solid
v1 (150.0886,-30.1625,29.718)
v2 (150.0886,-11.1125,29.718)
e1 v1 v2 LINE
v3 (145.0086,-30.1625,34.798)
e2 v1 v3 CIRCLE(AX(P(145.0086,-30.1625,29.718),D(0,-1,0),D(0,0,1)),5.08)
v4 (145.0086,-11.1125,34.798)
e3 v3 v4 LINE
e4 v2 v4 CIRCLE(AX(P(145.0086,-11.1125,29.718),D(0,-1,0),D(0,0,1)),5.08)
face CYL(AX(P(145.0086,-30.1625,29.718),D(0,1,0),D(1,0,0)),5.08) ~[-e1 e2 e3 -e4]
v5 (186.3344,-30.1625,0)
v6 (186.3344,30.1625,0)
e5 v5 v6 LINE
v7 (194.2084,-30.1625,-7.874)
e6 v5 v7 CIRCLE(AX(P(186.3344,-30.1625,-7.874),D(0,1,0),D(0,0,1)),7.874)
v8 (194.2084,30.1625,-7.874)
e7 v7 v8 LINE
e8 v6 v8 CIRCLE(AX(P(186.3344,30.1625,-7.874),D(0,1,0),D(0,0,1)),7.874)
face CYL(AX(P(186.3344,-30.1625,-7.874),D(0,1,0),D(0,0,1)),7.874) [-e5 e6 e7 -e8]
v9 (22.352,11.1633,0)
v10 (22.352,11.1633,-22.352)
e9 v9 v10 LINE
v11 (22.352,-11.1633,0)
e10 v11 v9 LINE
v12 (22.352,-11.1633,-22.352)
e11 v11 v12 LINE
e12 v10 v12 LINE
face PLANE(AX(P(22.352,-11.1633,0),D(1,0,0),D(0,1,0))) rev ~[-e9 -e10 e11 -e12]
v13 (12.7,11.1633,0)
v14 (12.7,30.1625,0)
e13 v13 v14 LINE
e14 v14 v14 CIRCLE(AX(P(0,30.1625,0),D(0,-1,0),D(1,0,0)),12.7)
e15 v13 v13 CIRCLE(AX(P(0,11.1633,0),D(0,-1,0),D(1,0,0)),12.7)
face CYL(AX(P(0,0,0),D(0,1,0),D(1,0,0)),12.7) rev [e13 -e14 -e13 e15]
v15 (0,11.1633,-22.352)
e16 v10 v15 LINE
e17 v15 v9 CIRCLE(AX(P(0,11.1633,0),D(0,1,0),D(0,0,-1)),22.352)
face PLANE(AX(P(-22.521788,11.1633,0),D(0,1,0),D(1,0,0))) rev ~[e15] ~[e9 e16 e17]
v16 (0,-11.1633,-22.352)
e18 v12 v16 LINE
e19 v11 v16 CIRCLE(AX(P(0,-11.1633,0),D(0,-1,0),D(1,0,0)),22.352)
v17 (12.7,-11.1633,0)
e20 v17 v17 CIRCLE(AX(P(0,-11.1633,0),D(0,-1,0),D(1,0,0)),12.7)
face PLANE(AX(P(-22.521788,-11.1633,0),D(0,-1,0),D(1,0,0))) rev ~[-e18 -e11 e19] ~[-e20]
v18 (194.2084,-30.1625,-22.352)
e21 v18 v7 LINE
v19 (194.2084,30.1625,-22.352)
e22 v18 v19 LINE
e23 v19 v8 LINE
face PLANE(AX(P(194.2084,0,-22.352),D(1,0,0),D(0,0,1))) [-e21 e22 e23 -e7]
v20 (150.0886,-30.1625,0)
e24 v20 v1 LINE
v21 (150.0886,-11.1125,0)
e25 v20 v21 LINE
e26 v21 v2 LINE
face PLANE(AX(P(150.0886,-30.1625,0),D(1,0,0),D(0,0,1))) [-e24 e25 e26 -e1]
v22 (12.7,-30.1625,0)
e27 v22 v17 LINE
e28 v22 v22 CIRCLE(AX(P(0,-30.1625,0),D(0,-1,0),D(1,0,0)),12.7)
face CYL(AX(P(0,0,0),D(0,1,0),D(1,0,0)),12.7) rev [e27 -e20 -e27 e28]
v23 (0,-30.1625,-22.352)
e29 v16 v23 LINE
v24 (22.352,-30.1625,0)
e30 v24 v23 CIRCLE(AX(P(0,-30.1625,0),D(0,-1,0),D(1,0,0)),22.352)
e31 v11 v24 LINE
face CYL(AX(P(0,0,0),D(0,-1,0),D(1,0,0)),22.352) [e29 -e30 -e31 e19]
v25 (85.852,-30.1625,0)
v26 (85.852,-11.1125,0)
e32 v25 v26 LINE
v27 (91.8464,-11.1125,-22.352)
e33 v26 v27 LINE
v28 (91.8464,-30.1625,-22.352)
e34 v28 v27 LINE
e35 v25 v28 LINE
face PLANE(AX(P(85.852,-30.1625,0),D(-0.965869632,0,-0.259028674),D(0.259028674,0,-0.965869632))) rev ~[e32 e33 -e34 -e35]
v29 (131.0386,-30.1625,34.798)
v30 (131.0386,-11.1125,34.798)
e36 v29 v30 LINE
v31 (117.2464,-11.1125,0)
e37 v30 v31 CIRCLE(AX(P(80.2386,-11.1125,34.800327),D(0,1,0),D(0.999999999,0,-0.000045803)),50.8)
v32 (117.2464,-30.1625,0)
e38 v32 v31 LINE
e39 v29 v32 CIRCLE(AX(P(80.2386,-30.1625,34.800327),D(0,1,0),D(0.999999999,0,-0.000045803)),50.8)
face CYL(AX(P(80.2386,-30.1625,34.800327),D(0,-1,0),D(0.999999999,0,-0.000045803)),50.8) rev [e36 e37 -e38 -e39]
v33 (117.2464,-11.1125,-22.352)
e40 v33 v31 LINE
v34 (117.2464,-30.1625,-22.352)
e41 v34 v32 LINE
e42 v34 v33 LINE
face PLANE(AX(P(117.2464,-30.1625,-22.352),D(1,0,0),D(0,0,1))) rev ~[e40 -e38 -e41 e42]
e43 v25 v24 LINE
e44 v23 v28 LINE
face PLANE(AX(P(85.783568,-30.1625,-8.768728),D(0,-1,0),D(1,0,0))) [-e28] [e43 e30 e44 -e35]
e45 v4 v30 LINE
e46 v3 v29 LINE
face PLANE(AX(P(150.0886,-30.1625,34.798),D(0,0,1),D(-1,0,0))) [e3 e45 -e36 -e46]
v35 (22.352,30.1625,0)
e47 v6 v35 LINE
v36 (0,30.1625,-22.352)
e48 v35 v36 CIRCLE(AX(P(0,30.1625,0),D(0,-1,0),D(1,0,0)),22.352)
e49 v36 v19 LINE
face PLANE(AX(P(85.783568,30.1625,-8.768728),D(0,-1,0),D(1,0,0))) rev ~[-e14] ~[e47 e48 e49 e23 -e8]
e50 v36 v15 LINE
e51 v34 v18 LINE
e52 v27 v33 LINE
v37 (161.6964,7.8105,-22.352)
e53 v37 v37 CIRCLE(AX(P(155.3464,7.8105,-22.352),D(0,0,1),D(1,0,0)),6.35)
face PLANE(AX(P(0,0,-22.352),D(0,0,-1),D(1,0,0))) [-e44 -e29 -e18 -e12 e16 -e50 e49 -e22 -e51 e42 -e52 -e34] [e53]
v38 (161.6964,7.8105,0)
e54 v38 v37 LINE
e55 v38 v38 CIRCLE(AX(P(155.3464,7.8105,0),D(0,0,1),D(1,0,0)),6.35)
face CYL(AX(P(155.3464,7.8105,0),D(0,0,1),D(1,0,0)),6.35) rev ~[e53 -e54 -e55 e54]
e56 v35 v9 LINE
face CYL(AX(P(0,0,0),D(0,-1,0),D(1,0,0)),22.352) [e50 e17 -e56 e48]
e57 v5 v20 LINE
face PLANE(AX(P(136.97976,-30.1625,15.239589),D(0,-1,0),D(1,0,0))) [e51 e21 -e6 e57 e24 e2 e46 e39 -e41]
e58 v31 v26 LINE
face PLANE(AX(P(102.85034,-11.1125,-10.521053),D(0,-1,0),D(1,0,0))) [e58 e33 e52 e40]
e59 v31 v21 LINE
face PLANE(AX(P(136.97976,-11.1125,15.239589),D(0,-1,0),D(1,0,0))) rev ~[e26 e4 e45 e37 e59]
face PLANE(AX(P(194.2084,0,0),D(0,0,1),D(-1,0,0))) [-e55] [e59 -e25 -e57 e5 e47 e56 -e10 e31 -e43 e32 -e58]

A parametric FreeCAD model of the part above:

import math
import FreeCAD as App
import Part
import Sketcher
from FreeCAD import Vector
Q = App.Units.Quantity


def edges_at(feature, points):
    """Names of the edges that pass closest to the given points."""
    edges = feature.Shape.Edges
    near = lambda p: min(range(len(edges)), key=lambda i: edges[i].distToShape(Part.Vertex(*p))[0])
    return sorted({f"Edge{near(p) + 1}" for p in points})

doc = App.newDocument("Part")
params = doc.addObject("Spreadsheet::Sheet", "Params")
for row, (alias, value) in enumerate([
    ("sketch1_diameter", "1 in"),
    ("sketch1_radius", "0.88 in"),
    ("sketch1_width", "6.766 in"),
    ("pad1_length", "2.375 in"),
    ("sketch2_height", "0.879 in"),
    ("sketch3_width", "1 in"),
    ("sketch3_height", "0.88 in"),
    ("sketch3_width2", "1.236 in"),
    ("pocket2_length", "0.75 in"),
    ("sketch4_radius", "2 in"),
    ("sketch4_width", "0.75 in"),
    ("sketch4_height", "1.37 in"),
    ("sketch4_width2", "1.293 in"),
    ("pad2_length", "0.75 in"),
    ("sketch5_diameter", "0.5 in"),
    ("fillet_radius", "0.31 in"),
    ("fillet2_radius", "0.2 in"),
], start=1):
    params.set(f"A{row}", alias)
    params.set(f"B{row}", "=" + value)
    params.setAlias(f"B{row}", alias)

body = doc.addObject("PartDesign::Body", "Body")

sketch1 = body.newObject("Sketcher::SketchObject", "Sketch")
sketch1.AttachmentSupport = (doc.getObject("XZ_Plane"), [""])
sketch1.MapMode = "FlatFace"
sketch1.addGeometry([
    Part.LineSegment(Vector(194.2084, 0, 0), Vector(22.352, 0, 0)),
    Part.ArcOfCircle(Part.Circle(Vector(0, 0, 0), Vector(0, 0, 1), 22.352), math.radians(0), math.radians(270)),
    Part.LineSegment(Vector(0, -22.352, 0), Vector(194.2084, -22.352, 0)),
    Part.LineSegment(Vector(194.2084, -22.352, 0), Vector(194.2084, 0, 0)),
    Part.Circle(Vector(0, 0, 0), Vector(0, 0, 1), 12.7),
], False)
sketch1.addConstraint([
    Sketcher.Constraint("Coincident", 0, 2, 1, 1),
    Sketcher.Constraint("Tangent", 1, 2, 2, 1),
    Sketcher.Constraint("Coincident", 2, 2, 3, 1),
    Sketcher.Constraint("Coincident", 3, 2, 0, 1),
    Sketcher.Constraint("Horizontal", 0),
    Sketcher.Constraint("Horizontal", 2),
    Sketcher.Constraint("Vertical", 3),
    Sketcher.Constraint("Coincident", 1, 3, -1, 1),
    Sketcher.Constraint("Coincident", 4, 3, -1, 1),
    Sketcher.Constraint("PointOnObject", 0, 2, -1),
    Sketcher.Constraint("Diameter", 4, Q("1 in")),
    Sketcher.Constraint("Radius", 1, Q("0.88 in")),
    Sketcher.Constraint("DistanceX", 0, 2, 0, 1, Q("6.766 in")),
])
sketch1.setExpression("Constraints[10]", "Params.sketch1_diameter")
sketch1.setExpression("Constraints[11]", "Params.sketch1_radius")
sketch1.setExpression("Constraints[12]", "Params.sketch1_width")
pad1 = body.newObject("PartDesign::Pad", "Pad")
pad1.Profile = sketch1
pad1.setExpression("Length", "Params.pad1_length")
pad1.Midplane = True

sketch2 = body.newObject("Sketcher::SketchObject", "Sketch001")
sketch2.AttachmentSupport = (doc.getObject("XY_Plane"), [""])
sketch2.MapMode = "FlatFace"
sketch2.addGeometry([
    Part.LineSegment(Vector(-22.521788, 11.1633, 0), Vector(-22.521788, -11.1633, 0)),
    Part.LineSegment(Vector(-22.521788, -11.1633, 0), Vector(22.352, -11.1633, 0)),
    Part.LineSegment(Vector(22.352, -11.1633, 0), Vector(22.352, 11.1633, 0)),
    Part.LineSegment(Vector(22.352, 11.1633, 0), Vector(-22.521788, 11.1633, 0)),
], False)
sketch2.addConstraint([
    Sketcher.Constraint("Coincident", 0, 2, 1, 1),
    Sketcher.Constraint("Coincident", 1, 2, 2, 1),
    Sketcher.Constraint("Coincident", 2, 2, 3, 1),
    Sketcher.Constraint("Coincident", 3, 2, 0, 1),
    Sketcher.Constraint("Vertical", 0),
    Sketcher.Constraint("Horizontal", 1),
    Sketcher.Constraint("Vertical", 2),
    Sketcher.Constraint("Horizontal", 3),
    Sketcher.Constraint("DistanceY", 0, 2, 0, 1, Q("0.879 in")),
    Sketcher.Constraint("DistanceX", -1, 1, 1, 2, Q("0.88 in")),
    Sketcher.Constraint("DistanceY", 0, 2, -1, 1, Q("0.4395 in")),
    Sketcher.Constraint("DistanceX", 1, 1, 1, 2, 44.873788),
])
sketch2.setExpression("Constraints[8]", "Params.sketch2_height")
pocket1 = body.newObject("PartDesign::Pocket", "Pocket")
pocket1.Profile = sketch2
pocket1.Type = "ThroughAll"
pocket1.Midplane = True

sketch3 = body.newObject("Sketcher::SketchObject", "Sketch002")
sketch3.AttachmentSupport = (doc.getObject("XZ_Plane"), [""])
sketch3.MapMode = "FlatFace"
sketch3.AttachmentOffset = App.Placement(Vector(0, 0, 1.1875 * 25.4), App.Rotation())
sketch3.addGeometry([
    Part.LineSegment(Vector(117.2464, 0, 0), Vector(85.852, 0, 0)),
    Part.LineSegment(Vector(85.852, 0, 0), Vector(91.8464, -22.352, 0)),
    Part.LineSegment(Vector(91.8464, -22.352, 0), Vector(117.2464, -22.352, 0)),
    Part.LineSegment(Vector(117.2464, -22.352, 0), Vector(117.2464, 0, 0)),
], False)
sketch3.addConstraint([
    Sketcher.Constraint("Coincident", 0, 2, 1, 1),
    Sketcher.Constraint("Coincident", 1, 2, 2, 1),
    Sketcher.Constraint("Coincident", 2, 2, 3, 1),
    Sketcher.Constraint("Coincident", 3, 2, 0, 1),
    Sketcher.Constraint("Horizontal", 0),
    Sketcher.Constraint("Horizontal", 2),
    Sketcher.Constraint("Vertical", 3),
    Sketcher.Constraint("PointOnObject", 0, 2, -1),
    Sketcher.Constraint("DistanceX", 2, 1, 2, 2, Q("1 in")),
    Sketcher.Constraint("DistanceY", 3, 1, 3, 2, Q("0.88 in")),
    Sketcher.Constraint("DistanceX", 0, 2, 0, 1, Q("1.236 in")),
    Sketcher.Constraint("DistanceX", -1, 1, 0, 2, Q("3.38 in")),
])
sketch3.setExpression("Constraints[8]", "Params.sketch3_width")
sketch3.setExpression("Constraints[9]", "Params.sketch3_height")
sketch3.setExpression("Constraints[10]", "Params.sketch3_width2")
pocket2 = body.newObject("PartDesign::Pocket", "Pocket001")
pocket2.Profile = sketch3
pocket2.setExpression("Length", "Params.pocket2_length")

sketch4 = body.newObject("Sketcher::SketchObject", "Sketch003")
sketch4.AttachmentSupport = (doc.getObject("XZ_Plane"), [""])
sketch4.MapMode = "FlatFace"
sketch4.AttachmentOffset = App.Placement(Vector(0, 0, 1.1875 * 25.4), App.Rotation())
sketch4.addGeometry([
    Part.LineSegment(Vector(150.0886, 34.798, 0), Vector(131.0386, 34.798, 0)),
    Part.ArcOfCircle(Part.Circle(Vector(80.2386, 34.800327, 0), Vector(0, 0, 1), 50.8), math.radians(-43.239209), math.radians(-0.002624)),
    Part.LineSegment(Vector(117.2464, 0, 0), Vector(150.0886, 0, 0)),
    Part.LineSegment(Vector(150.0886, 0, 0), Vector(150.0886, 34.798, 0)),
], False)
sketch4.addConstraint([
    Sketcher.Constraint("Coincident", 0, 2, 1, 2),
    Sketcher.Constraint("Coincident", 1, 1, 2, 1),
    Sketcher.Constraint("Coincident", 2, 2, 3, 1),
    Sketcher.Constraint("Coincident", 3, 2, 0, 1),
    Sketcher.Constraint("Horizontal", 0),
    Sketcher.Constraint("Horizontal", 2),
    Sketcher.Constraint("Vertical", 3),
    Sketcher.Constraint("PointOnObject", 1, 1, -1),
    Sketcher.Constraint("Radius", 1, Q("2 in")),
    Sketcher.Constraint("DistanceX", 0, 2, 0, 1, Q("0.75 in")),
    Sketcher.Constraint("DistanceY", 3, 1, 3, 2, Q("1.37 in")),
    Sketcher.Constraint("DistanceX", 2, 1, 2, 2, Q("1.293 in")),
    Sketcher.Constraint("DistanceX", -1, 1, 1, 3, Q("3.159 in")),
])
sketch4.setExpression("Constraints[8]", "Params.sketch4_radius")
sketch4.setExpression("Constraints[9]", "Params.sketch4_width")
sketch4.setExpression("Constraints[10]", "Params.sketch4_height")
sketch4.setExpression("Constraints[11]", "Params.sketch4_width2")
pad2 = body.newObject("PartDesign::Pad", "Pad001")
pad2.Profile = sketch4
pad2.setExpression("Length", "Params.pad2_length")
pad2.Reversed = True

sketch5 = body.newObject("Sketcher::SketchObject", "Sketch004")
sketch5.AttachmentSupport = (doc.getObject("XY_Plane"), [""])
sketch5.MapMode = "FlatFace"
sketch5.addGeometry(Part.Circle(Vector(155.3464, 7.8105, 0), Vector(0, 0, 1), 6.35), False)
sketch5.addConstraint([
    Sketcher.Constraint("Diameter", 0, Q("0.5 in")),
    Sketcher.Constraint("DistanceX", -1, 1, 0, 3, Q("6.116 in")),
    Sketcher.Constraint("DistanceY", -1, 1, 0, 3, Q("0.3075 in")),
])
sketch5.setExpression("Constraints[0]", "Params.sketch5_diameter")
pocket3 = body.newObject("PartDesign::Pocket", "Pocket002")
pocket3.Profile = sketch5
pocket3.Type = "ThroughAll"
doc.recompute()

fillet = body.newObject("PartDesign::Fillet", "Fillet")
fillet.Base = (pocket3, edges_at(pocket3, [(194.208, 0, 0)]))
fillet.setExpression("Radius", "Params.fillet_radius")
doc.recompute()

fillet2 = body.newObject("PartDesign::Fillet", "Fillet001")
fillet2.Base = (fillet, edges_at(fillet, [(150.089, -20.637, 34.798)]))
fillet2.setExpression("Radius", "Params.fillet2_radius")

doc.recompute()
